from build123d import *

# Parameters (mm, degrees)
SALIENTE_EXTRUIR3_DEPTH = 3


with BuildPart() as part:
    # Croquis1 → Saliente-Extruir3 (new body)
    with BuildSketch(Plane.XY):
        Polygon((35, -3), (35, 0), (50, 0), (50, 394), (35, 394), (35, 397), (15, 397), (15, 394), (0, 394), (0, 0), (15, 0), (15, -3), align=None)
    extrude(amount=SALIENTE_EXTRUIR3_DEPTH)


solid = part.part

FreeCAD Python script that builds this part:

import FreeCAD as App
import Part
import Sketcher
Q = App.Units.Quantity


def add_polygon(sketch, points):
    """Adds a closed chain of lines whose ends are joined by coincident constraints."""
    first, n = sketch.GeometryCount, len(points)
    for a, b in zip(points, points[1:] + points[:1]):
        sketch.addGeometry(Part.LineSegment(App.Vector(*a, 0), App.Vector(*b, 0)), False)
    for i in range(n):
        sketch.addConstraint(Sketcher.Constraint("Coincident", first + i, 2, first + (i + 1) % n, 1))

doc = App.newDocument("Part")
body = doc.addObject("PartDesign::Body", "Body")

sketch1 = body.newObject("Sketcher::SketchObject", "Sketch")
sketch1.AttachmentSupport = (doc.getObject("XY_Plane"), [""])
sketch1.MapMode = "FlatFace"
add_polygon(sketch1, [(35, -3), (35, 0), (50, 0), (50, 394), (35, 394), (35, 397), (15, 397), (15, 394), (0, 394), (0, 0), (15, 0), (15, -3)])
sketch1.addConstraint([
    Sketcher.Constraint("Vertical", 0),
    Sketcher.Constraint("Horizontal", 1),
    Sketcher.Constraint("Vertical", 2),
    Sketcher.Constraint("Horizontal", 3),
    Sketcher.Constraint("Vertical", 4),
    Sketcher.Constraint("Horizontal", 5),
    Sketcher.Constraint("Vertical", 6),
    Sketcher.Constraint("Horizontal", 7),
    Sketcher.Constraint("Vertical", 8),
    Sketcher.Constraint("Horizontal", 9),
    Sketcher.Constraint("Vertical", 10),
    Sketcher.Constraint("Horizontal", 11),
    Sketcher.Constraint("Coincident", 8, 2, -1, 1),
    Sketcher.Constraint("PointOnObject", 0, 2, -1),
    Sketcher.Constraint("Horizontal", 3, 2, 6, 2),
    Sketcher.Constraint("Vertical", 0, 2, 3, 2),
    Sketcher.Constraint("Vertical", 6, 2, 9, 2),
    Sketcher.Constraint("Equal", 3, 7),
    Sketcher.Constraint("Equal", 0, 4),
    Sketcher.Constraint("DistanceX", 1, 1, 1, 2, Q("15 mm")),
    Sketcher.Constraint("DistanceX", 5, 2, 5, 1, Q("20 mm")),
    Sketcher.Constraint("DistanceY", 0, 1, 0, 2, Q("3 mm")),
    Sketcher.Constraint("DistanceY", 2, 1, 2, 2, Q("394 mm")),
])
pad1 = body.newObject("PartDesign::Pad", "Pad")
pad1.Profile = sketch1
pad1.Length = 3

doc.recompute()
